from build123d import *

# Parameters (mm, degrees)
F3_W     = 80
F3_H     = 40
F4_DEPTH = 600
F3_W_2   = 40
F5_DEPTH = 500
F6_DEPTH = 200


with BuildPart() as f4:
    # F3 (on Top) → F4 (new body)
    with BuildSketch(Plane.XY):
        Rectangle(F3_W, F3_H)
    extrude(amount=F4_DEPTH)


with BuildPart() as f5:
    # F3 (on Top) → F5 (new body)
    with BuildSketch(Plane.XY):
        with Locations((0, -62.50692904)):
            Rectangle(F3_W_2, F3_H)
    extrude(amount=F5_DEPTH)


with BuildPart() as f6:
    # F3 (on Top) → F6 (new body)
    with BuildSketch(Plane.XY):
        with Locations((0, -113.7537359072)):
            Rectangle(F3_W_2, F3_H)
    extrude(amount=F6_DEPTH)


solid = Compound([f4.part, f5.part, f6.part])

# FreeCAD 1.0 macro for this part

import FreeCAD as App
import Part
import Sketcher

V = App.Vector
Q = App.Units.Quantity

doc = App.newDocument("Part")
body = doc.addObject("PartDesign::Body", "Body")

# Sketch on XY plane
sketch1 = body.newObject("Sketcher::SketchObject", "Sketch")
sketch1.AttachmentSupport = (doc.getObject("XY_Plane"), [""])
sketch1.MapMode = "FlatFace"
sketch1.addGeometry([
    Part.LineSegment(V(-40, 20, 0), V(-40, -20, 0)),
    Part.LineSegment(V(-40, -20, 0), V(40, -20, 0)),
    Part.LineSegment(V(40, -20, 0), V(40, 20, 0)),
    Part.LineSegment(V(40, 20, 0), V(-40, 20, 0)),
], False)
sketch1.addConstraint([
    Sketcher.Constraint("Coincident", 0, 2, 1, 1),
    Sketcher.Constraint("Coincident", 1, 2, 2, 1),
    Sketcher.Constraint("Coincident", 2, 2, 3, 1),
    Sketcher.Constraint("Coincident", 3, 2, 0, 1),
    Sketcher.Constraint("Vertical", 0),
    Sketcher.Constraint("Horizontal", 1),
    Sketcher.Constraint("Vertical", 2),
    Sketcher.Constraint("Horizontal", 3),
    Sketcher.Constraint("Symmetric", 0, 2, 2, 2, -1, 1),
    Sketcher.Constraint("DistanceX", 1, 1, 1, 2, Q("80 mm")),
    Sketcher.Constraint("DistanceY", 0, 2, 0, 1, Q("40 mm")),
])
pad1 = body.newObject("PartDesign::Pad", "Pad")
pad1.Profile = sketch1
pad1.Length = 600
body2 = doc.addObject("PartDesign::Body", "Body001")

# Sketch on XY plane
sketch2 = body2.newObject("Sketcher::SketchObject", "Sketch001")
sketch2.AttachmentSupport = (doc.getObject("XY_Plane001"), [""])
sketch2.MapMode = "FlatFace"
sketch2.addGeometry([
    Part.LineSegment(V(-20, -43, 0), V(-20, -83, 0)),
    Part.LineSegment(V(-20, -83, 0), V(20, -83, 0)),
    Part.LineSegment(V(20, -83, 0), V(20, -43, 0)),
    Part.LineSegment(V(20, -43, 0), V(-20, -43, 0)),
], False)
sketch2.addConstraint([
    Sketcher.Constraint("Coincident", 0, 2, 1, 1),
    Sketcher.Constraint("Coincident", 1, 2, 2, 1),
    Sketcher.Constraint("Coincident", 2, 2, 3, 1),
    Sketcher.Constraint("Coincident", 3, 2, 0, 1),
    Sketcher.Constraint("Vertical", 0),
    Sketcher.Constraint("Horizontal", 1),
    Sketcher.Constraint("Vertical", 2),
    Sketcher.Constraint("Horizontal", 3),
    Sketcher.Constraint("Equal", 3, 0),
    Sketcher.Constraint("DistanceX", 1, 1, 1, 2, Q("40 mm")),
    Sketcher.Constraint("DistanceX", 0, 2, -1, 1, Q("20 mm")),
    Sketcher.Constraint("DistanceY", 0, 2, -1, 1, Q("82.506929 mm")),
])
pad2 = body2.newObject("PartDesign::Pad", "Pad001")
pad2.Profile = sketch2
pad2.Length = 500
body3 = doc.addObject("PartDesign::Body", "Body002")

# Sketch on XY plane
sketch3 = body3.newObject("Sketcher::SketchObject", "Sketch002")
sketch3.AttachmentSupport = (doc.getObject("XY_Plane002"), [""])
sketch3.MapMode = "FlatFace"
sketch3.addGeometry([
    Part.LineSegment(V(-20, -94, 0), V(-20, -134, 0)),
    Part.LineSegment(V(-20, -134, 0), V(20, -134, 0)),
    Part.LineSegment(V(20, -134, 0), V(20, -94, 0)),
    Part.LineSegment(V(20, -94, 0), V(-20, -94, 0)),
], False)
sketch3.addConstraint([
    Sketcher.Constraint("Coincident", 0, 2, 1, 1),
    Sketcher.Constraint("Coincident", 1, 2, 2, 1),
    Sketcher.Constraint("Coincident", 2, 2, 3, 1),
    Sketcher.Constraint("Coincident", 3, 2, 0, 1),
    Sketcher.Constraint("Vertical", 0),
    Sketcher.Constraint("Horizontal", 1),
    Sketcher.Constraint("Vertical", 2),
    Sketcher.Constraint("Horizontal", 3),
    Sketcher.Constraint("Equal", 3, 0),
    Sketcher.Constraint("DistanceX", 1, 1, 1, 2, Q("40 mm")),
    Sketcher.Constraint("DistanceX", 0, 2, -1, 1, Q("20 mm")),
    Sketcher.Constraint("DistanceY", 0, 2, -1, 1, Q("133.753736 mm")),
])
pad3 = body3.newObject("PartDesign::Pad", "Pad002")
pad3.Profile = sketch3
pad3.Length = 200

doc.recompute()
